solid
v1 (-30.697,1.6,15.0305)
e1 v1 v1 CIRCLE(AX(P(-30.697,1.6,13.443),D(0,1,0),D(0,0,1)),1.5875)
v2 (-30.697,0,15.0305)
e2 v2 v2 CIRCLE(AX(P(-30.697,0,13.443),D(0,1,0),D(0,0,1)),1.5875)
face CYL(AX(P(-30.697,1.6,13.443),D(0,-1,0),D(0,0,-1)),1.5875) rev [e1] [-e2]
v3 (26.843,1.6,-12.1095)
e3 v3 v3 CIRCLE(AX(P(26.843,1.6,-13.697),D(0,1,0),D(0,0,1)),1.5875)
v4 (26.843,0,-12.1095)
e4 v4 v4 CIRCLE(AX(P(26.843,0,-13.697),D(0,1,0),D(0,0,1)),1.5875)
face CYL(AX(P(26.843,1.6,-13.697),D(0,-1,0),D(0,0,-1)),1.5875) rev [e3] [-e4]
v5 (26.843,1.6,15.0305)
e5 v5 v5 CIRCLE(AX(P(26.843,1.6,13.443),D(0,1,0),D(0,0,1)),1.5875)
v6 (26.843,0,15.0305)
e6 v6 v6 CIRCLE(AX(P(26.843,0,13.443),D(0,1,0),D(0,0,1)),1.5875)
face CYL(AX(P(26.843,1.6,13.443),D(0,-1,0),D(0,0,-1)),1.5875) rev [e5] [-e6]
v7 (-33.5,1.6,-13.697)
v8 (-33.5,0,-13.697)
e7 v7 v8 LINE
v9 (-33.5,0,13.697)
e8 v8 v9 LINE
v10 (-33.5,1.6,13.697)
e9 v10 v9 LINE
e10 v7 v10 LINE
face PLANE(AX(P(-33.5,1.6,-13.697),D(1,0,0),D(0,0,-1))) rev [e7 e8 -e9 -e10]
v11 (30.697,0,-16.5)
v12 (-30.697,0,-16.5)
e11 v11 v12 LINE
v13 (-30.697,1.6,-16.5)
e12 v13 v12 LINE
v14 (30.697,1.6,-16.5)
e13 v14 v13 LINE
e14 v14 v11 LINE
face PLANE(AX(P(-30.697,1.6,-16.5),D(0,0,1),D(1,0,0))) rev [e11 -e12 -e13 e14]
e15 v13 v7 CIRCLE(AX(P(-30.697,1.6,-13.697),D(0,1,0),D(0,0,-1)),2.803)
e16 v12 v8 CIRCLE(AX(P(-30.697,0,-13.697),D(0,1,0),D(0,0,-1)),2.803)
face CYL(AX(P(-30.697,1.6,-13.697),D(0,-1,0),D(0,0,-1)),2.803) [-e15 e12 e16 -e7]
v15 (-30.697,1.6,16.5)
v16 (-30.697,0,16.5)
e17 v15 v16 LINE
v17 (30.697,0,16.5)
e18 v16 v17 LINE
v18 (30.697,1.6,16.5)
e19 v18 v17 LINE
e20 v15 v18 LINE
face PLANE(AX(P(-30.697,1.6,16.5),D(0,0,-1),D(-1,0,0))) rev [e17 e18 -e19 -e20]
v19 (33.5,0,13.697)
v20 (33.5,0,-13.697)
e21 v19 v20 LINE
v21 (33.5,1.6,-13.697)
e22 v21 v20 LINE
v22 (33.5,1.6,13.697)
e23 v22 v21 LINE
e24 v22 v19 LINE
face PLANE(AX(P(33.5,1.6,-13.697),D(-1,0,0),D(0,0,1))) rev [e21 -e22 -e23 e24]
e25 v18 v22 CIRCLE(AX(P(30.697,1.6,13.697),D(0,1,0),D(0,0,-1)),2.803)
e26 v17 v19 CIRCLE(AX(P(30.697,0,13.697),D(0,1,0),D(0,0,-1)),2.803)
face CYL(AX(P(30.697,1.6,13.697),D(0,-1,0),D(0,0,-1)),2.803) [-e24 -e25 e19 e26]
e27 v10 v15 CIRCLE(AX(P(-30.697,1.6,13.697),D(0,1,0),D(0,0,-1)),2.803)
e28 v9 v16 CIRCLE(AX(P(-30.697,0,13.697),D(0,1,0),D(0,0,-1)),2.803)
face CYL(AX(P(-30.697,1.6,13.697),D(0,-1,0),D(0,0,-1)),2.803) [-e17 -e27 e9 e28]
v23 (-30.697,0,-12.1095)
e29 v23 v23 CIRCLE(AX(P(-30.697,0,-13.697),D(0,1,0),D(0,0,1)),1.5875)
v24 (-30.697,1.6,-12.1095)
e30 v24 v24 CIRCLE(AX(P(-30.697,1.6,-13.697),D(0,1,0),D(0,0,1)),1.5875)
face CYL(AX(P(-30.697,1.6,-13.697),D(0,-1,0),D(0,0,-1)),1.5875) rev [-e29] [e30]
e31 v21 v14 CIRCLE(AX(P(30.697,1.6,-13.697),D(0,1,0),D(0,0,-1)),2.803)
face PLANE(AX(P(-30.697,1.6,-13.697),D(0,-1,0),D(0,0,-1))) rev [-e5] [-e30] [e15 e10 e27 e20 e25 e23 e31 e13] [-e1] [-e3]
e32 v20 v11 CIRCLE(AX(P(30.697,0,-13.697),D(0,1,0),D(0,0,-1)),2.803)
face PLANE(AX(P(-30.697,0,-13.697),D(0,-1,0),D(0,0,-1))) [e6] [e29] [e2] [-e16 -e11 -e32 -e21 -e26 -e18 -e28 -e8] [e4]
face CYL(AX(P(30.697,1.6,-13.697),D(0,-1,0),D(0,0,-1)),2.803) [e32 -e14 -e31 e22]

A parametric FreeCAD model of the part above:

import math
import FreeCAD as App
import Part
import Sketcher
from FreeCAD import Vector
Q = App.Units.Quantity

doc = App.newDocument("Part")
body = doc.addObject("PartDesign::Body", "Body")

sketch1 = body.newObject("Sketcher::SketchObject", "Sketch")
sketch1.AttachmentSupport = (doc.getObject("XZ_Plane"), [""])
sketch1.MapMode = "FlatFace"
sketch1.addGeometry(Part.LineSegment(Vector(-33.5, -13.7, 0), Vector(-33.5, 13.7, 0)), False)
sketch1.addGeometry(Part.ArcOfCircle(Part.Circle(Vector(-30.7, 13.7, 0), Vector(0, 0, 1), 2.8), math.radians(90), math.radians(180)), False)
sketch1.addGeometry(Part.LineSegment(Vector(-30.7, 16.5, 0), Vector(30.7, 16.5, 0)), False)
sketch1.addGeometry(Part.ArcOfCircle(Part.Circle(Vector(30.7, 13.7, 0), Vector(0, 0, 1), 2.8), math.radians(0), math.radians(90)), False)
sketch1.addGeometry(Part.LineSegment(Vector(33.5, 13.7, 0), Vector(33.5, -13.7, 0)), False)
sketch1.addGeometry(Part.ArcOfCircle(Part.Circle(Vector(30.7, -13.7, 0), Vector(0, 0, 1), 2.8), math.radians(-90), math.radians(0)), False)
sketch1.addGeometry(Part.LineSegment(Vector(30.7, -16.5, 0), Vector(-30.7, -16.5, 0)), False)
sketch1.addGeometry(Part.ArcOfCircle(Part.Circle(Vector(-30.7, -13.7, 0), Vector(0, 0, 1), 2.8), math.radians(180), math.radians(270)), False)
sketch1.addGeometry(Part.Circle(Vector(-30.7, 13.4, 0), Vector(0, 0, 1), 1.6), False)
sketch1.addGeometry(Part.Circle(Vector(26.8, 13.4, 0), Vector(0, 0, 1), 1.6), False)
sketch1.addGeometry(Part.Circle(Vector(-30.7, -13.7, 0), Vector(0, 0, 1), 1.6), False)
sketch1.addGeometry(Part.Circle(Vector(26.8, -13.7, 0), Vector(0, 0, 1), 1.6), False)
sketch1.addConstraint(Sketcher.Constraint("Tangent", 0, 2, 1, 2))
sketch1.addConstraint(Sketcher.Constraint("Tangent", 1, 1, 2, 1))
sketch1.addConstraint(Sketcher.Constraint("Tangent", 2, 2, 3, 2))
sketch1.addConstraint(Sketcher.Constraint("Tangent", 3, 1, 4, 1))
sketch1.addConstraint(Sketcher.Constraint("Tangent", 4, 2, 5, 2))
sketch1.addConstraint(Sketcher.Constraint("Tangent", 5, 1, 6, 1))
sketch1.addConstraint(Sketcher.Constraint("Tangent", 6, 2, 7, 2))
sketch1.addConstraint(Sketcher.Constraint("Tangent", 7, 1, 0, 1))
sketch1.addConstraint(Sketcher.Constraint("Vertical", 0))
sketch1.addConstraint(Sketcher.Constraint("Horizontal", 2))
sketch1.addConstraint(Sketcher.Constraint("Vertical", 4))
sketch1.addConstraint(Sketcher.Constraint("Horizontal", 6))
sketch1.addConstraint(Sketcher.Constraint("Coincident", 10, 3, 7, 3))
sketch1.addConstraint(Sketcher.Constraint("Equal", 1, 3))
sketch1.addConstraint(Sketcher.Constraint("Equal", 3, 5))
sketch1.addConstraint(Sketcher.Constraint("Equal", 5, 7))
sketch1.addConstraint(Sketcher.Constraint("Equal", 8, 9))
sketch1.addConstraint(Sketcher.Constraint("Equal", 9, 10))
sketch1.addConstraint(Sketcher.Constraint("Equal", 10, 11))
sketch1.addConstraint(Sketcher.Constraint("Symmetric", 1, 3, 5, 3, -1, 1))
sketch1.addConstraint(Sketcher.Constraint("Horizontal", 8, 3, 9, 3))
sketch1.addConstraint(Sketcher.Constraint("Horizontal", 10, 3, 11, 3))
sketch1.addConstraint(Sketcher.Constraint("Vertical", 7, 3, 8, 3))
sketch1.addConstraint(Sketcher.Constraint("Vertical", 9, 3, 11, 3))
sketch1.addConstraint(Sketcher.Constraint("Diameter", 8, Q("3.175 mm")))
sketch1.addConstraint(Sketcher.Constraint("Radius", 1, Q("2.803 mm")))
sketch1.addConstraint(Sketcher.Constraint("DistanceX", 0, 2, -1, 1, Q("33.5 mm")))
sketch1.addConstraint(Sketcher.Constraint("DistanceY", -1, 1, 1, 1, Q("16.5 mm")))
sketch1.addConstraint(Sketcher.Constraint("DistanceY", 7, 3, 8, 3, Q("27.14 mm")))
sketch1.addConstraint(Sketcher.Constraint("DistanceX", 8, 3, 9, 3, Q("57.54 mm")))
pad1 = body.newObject("PartDesign::Pad", "Pad")
pad1.Profile = sketch1
pad1.Length = 1.6
pad1.Reversed = True

doc.recompute()
